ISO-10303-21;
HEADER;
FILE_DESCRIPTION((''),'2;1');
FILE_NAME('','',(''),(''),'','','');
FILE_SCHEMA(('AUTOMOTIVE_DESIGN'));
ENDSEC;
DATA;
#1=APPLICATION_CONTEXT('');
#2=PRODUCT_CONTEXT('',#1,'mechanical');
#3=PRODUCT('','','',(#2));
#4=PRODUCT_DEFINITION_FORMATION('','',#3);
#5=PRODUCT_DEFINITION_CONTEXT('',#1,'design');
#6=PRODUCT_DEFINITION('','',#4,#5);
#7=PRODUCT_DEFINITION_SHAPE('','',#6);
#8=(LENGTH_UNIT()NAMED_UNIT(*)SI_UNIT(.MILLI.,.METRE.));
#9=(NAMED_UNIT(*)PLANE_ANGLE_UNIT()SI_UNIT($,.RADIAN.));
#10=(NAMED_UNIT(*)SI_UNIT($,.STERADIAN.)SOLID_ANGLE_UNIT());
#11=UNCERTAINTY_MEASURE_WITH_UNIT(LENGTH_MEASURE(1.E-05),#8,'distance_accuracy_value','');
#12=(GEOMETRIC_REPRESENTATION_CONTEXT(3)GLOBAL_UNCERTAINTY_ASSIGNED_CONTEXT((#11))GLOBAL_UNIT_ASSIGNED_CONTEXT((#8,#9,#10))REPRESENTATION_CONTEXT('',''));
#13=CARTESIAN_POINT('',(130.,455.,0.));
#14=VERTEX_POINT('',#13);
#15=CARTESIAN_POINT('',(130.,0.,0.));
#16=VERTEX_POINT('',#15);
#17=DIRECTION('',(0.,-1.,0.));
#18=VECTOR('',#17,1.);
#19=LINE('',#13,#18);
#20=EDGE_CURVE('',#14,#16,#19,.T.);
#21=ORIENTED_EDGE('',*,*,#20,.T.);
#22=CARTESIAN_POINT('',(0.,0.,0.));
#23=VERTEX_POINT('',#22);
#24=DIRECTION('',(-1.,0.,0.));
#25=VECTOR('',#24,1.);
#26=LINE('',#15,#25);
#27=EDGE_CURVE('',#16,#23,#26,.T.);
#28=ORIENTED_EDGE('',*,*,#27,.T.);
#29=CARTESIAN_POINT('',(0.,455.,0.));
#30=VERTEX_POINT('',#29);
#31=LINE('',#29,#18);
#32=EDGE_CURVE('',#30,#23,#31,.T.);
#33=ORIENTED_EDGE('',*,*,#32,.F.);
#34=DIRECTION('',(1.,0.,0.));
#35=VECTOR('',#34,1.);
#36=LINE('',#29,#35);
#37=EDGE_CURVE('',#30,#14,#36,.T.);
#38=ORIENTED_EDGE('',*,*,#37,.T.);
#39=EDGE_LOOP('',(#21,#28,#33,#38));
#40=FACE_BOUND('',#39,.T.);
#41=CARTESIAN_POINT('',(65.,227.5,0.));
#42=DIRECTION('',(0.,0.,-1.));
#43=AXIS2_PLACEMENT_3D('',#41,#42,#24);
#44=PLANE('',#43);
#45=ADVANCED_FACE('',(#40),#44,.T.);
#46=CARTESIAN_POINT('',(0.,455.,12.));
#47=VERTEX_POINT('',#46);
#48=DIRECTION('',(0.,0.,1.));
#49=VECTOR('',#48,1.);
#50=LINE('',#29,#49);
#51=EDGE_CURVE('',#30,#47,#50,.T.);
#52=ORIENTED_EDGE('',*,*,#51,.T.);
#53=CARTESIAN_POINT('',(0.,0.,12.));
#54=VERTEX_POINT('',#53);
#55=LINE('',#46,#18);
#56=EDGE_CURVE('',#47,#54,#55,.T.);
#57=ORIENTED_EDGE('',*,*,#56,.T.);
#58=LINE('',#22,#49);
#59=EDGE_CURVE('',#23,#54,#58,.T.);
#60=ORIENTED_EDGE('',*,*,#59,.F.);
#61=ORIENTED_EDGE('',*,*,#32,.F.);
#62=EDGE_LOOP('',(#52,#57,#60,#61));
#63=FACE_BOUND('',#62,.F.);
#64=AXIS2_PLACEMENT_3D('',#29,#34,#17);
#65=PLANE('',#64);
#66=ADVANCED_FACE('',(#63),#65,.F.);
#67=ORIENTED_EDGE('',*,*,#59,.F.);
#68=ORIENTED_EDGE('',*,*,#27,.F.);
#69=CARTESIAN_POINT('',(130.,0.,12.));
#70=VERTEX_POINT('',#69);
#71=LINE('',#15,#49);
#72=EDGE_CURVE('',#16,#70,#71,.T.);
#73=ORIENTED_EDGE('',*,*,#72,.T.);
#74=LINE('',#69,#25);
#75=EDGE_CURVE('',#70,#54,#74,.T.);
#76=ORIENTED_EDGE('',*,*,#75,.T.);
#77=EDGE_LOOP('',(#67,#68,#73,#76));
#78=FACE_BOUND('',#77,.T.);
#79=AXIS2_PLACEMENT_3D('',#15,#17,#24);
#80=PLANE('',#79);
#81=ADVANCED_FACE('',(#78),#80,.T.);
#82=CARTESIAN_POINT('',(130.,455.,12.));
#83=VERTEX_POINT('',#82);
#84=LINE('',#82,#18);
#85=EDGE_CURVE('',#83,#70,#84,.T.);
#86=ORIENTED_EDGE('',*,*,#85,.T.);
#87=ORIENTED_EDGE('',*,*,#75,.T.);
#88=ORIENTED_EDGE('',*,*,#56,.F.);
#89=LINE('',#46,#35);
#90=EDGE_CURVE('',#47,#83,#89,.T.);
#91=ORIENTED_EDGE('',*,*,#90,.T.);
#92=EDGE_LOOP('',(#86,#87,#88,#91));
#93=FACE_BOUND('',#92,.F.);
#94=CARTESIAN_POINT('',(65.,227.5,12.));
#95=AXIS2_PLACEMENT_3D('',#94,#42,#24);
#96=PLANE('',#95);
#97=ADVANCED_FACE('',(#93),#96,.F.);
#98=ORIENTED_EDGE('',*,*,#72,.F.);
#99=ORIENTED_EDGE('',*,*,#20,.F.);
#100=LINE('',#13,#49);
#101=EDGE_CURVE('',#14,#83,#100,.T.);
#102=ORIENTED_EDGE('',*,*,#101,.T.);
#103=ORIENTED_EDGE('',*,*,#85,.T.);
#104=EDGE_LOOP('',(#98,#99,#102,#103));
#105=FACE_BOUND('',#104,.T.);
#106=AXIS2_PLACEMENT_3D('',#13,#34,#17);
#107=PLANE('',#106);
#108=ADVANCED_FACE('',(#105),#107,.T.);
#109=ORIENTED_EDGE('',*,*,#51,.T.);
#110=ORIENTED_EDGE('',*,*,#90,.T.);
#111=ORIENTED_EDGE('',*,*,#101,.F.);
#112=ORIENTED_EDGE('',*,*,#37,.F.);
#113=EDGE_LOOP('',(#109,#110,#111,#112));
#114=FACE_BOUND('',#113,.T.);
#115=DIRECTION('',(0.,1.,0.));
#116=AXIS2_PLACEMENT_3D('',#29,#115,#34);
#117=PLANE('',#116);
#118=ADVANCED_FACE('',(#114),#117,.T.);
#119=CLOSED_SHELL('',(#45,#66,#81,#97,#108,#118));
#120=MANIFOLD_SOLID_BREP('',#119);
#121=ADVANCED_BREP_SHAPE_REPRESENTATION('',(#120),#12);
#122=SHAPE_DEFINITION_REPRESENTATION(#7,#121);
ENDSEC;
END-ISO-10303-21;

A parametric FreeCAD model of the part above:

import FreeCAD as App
import Part
import Sketcher
Q = App.Units.Quantity

doc = App.newDocument("Part")
body = doc.addObject("PartDesign::Body", "Body")

sketch1 = body.newObject("Sketcher::SketchObject", "Sketch")
sketch1.AttachmentSupport = (doc.getObject("XY_Plane"), [""])
sketch1.MapMode = "FlatFace"
sketch1.addGeometry(Part.LineSegment(App.Vector(130, 455, 0), App.Vector(0, 455, 0)), False)
sketch1.addGeometry(Part.LineSegment(App.Vector(0, 455, 0), App.Vector(0, 0, 0)), False)
sketch1.addGeometry(Part.LineSegment(App.Vector(0, 0, 0), App.Vector(130, 0, 0)), False)
sketch1.addGeometry(Part.LineSegment(App.Vector(130, 0, 0), App.Vector(130, 455, 0)), False)
sketch1.addConstraint(Sketcher.Constraint("Coincident", 0, 2, 1, 1))
sketch1.addConstraint(Sketcher.Constraint("Coincident", 1, 2, 2, 1))
sketch1.addConstraint(Sketcher.Constraint("Coincident", 2, 2, 3, 1))
sketch1.addConstraint(Sketcher.Constraint("Coincident", 3, 2, 0, 1))
sketch1.addConstraint(Sketcher.Constraint("Horizontal", 0))
sketch1.addConstraint(Sketcher.Constraint("Vertical", 1))
sketch1.addConstraint(Sketcher.Constraint("Horizontal", 2))
sketch1.addConstraint(Sketcher.Constraint("Vertical", 3))
sketch1.addConstraint(Sketcher.Constraint("Coincident", 1, 2, -1, 1))
sketch1.addConstraint(Sketcher.Constraint("DistanceX", 0, 2, 0, 1, Q("130 mm")))
sketch1.addConstraint(Sketcher.Constraint("DistanceY", 1, 2, 1, 1, Q("455 mm")))
pad1 = body.newObject("PartDesign::Pad", "Pad")
pad1.Profile = sketch1
pad1.Length = 12

doc.recompute()
